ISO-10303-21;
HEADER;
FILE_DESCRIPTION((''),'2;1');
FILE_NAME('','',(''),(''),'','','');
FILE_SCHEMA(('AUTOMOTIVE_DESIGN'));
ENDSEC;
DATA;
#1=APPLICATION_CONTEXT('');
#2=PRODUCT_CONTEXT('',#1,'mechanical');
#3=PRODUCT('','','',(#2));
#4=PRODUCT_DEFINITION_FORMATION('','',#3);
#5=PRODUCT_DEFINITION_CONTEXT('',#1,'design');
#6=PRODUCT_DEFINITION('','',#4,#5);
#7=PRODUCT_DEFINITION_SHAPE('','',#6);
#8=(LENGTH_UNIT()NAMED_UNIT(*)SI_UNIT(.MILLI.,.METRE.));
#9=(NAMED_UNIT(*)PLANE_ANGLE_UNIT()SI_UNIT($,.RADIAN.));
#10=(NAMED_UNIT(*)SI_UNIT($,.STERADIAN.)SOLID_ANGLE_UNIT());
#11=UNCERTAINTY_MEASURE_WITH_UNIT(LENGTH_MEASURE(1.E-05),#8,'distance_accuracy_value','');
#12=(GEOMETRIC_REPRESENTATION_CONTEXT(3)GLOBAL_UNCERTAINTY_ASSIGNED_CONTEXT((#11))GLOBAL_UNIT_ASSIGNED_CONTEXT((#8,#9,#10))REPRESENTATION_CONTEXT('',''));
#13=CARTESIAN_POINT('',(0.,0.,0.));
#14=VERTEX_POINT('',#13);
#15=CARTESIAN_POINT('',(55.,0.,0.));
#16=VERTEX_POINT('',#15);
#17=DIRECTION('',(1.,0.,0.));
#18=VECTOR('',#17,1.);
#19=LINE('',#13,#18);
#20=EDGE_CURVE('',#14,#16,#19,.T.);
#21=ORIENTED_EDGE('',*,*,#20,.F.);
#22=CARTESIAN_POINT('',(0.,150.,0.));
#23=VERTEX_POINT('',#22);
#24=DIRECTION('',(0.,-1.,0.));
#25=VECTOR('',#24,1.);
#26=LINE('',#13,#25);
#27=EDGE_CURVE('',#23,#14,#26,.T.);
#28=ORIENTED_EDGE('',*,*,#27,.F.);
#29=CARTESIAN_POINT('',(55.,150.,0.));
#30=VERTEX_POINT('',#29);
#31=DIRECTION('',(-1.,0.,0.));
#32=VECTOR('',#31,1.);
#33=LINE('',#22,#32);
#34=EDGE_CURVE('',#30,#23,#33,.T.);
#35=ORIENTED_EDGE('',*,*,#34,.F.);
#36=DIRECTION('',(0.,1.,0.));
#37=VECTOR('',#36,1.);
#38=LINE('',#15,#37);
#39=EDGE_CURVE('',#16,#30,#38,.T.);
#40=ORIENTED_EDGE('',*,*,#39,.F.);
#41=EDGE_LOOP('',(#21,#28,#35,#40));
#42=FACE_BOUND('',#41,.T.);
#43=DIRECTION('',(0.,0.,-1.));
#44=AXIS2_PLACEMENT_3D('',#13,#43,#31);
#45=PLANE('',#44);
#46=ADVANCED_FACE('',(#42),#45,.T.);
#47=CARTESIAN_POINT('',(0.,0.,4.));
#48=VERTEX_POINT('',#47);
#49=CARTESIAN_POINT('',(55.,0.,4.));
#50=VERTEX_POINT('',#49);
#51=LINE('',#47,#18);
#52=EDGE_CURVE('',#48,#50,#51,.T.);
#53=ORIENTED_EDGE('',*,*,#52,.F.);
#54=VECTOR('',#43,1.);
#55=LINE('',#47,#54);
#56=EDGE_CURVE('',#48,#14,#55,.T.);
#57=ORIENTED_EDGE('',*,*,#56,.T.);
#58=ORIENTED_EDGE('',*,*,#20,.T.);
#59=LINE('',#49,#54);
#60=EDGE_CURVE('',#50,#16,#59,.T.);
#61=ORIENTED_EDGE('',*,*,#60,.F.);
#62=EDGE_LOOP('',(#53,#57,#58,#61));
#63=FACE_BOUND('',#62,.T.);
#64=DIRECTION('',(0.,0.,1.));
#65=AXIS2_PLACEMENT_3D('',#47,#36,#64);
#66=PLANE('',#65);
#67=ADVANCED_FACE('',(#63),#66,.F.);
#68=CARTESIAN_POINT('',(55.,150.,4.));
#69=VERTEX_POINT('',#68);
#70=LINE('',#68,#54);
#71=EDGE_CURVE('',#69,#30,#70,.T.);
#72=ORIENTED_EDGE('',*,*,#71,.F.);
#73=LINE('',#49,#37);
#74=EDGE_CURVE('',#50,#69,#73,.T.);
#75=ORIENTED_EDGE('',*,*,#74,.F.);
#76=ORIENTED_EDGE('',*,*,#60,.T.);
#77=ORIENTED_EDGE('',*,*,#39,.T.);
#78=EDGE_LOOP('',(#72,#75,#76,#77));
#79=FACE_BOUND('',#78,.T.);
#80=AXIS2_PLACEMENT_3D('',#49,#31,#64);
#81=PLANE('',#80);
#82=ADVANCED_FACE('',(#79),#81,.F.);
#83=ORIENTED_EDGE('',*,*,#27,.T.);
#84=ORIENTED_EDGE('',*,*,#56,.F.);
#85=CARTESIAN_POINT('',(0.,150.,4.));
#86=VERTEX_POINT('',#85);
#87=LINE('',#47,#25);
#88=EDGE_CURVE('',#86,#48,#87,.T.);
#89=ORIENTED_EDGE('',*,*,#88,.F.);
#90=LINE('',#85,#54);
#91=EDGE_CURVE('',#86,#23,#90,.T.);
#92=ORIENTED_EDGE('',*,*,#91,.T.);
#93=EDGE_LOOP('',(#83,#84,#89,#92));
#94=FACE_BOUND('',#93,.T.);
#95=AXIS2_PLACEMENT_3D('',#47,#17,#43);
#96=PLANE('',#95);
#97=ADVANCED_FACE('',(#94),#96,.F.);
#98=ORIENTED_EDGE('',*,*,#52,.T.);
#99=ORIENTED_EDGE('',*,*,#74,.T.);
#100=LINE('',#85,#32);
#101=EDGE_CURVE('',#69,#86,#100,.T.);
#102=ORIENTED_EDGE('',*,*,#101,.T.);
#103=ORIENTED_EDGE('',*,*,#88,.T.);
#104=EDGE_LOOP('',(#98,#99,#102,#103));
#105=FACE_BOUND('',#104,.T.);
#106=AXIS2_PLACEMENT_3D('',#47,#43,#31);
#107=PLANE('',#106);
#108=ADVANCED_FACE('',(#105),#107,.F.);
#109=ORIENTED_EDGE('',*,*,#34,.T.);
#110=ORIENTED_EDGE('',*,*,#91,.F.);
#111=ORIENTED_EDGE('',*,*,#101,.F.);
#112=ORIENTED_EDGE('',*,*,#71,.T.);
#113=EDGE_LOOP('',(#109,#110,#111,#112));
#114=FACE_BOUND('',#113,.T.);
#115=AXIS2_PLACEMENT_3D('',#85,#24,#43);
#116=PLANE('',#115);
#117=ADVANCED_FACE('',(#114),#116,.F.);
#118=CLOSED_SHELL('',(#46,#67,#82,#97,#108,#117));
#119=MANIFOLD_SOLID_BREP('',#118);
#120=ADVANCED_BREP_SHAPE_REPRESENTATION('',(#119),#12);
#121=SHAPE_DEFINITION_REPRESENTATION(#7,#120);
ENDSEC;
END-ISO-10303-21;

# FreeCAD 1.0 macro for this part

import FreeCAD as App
import Part
import Sketcher

V = App.Vector
Q = App.Units.Quantity


def add_polygon(sketch, points):
    """Adds a closed chain of lines whose ends are joined by coincident constraints."""
    first, n = sketch.GeometryCount, len(points)
    for a, b in zip(points, points[1:] + points[:1]):
        sketch.addGeometry(Part.LineSegment(App.Vector(*a, 0), App.Vector(*b, 0)), False)
    for i in range(n):
        sketch.addConstraint(Sketcher.Constraint("Coincident", first + i, 2, first + (i + 1) % n, 1))

doc = App.newDocument("Part")
body = doc.addObject("PartDesign::Body", "Body")

sketch1 = doc.addObject("Sketcher::SketchObject", "Sketch")
body.addObject(sketch1)
sketch1.AttachmentSupport = (doc.XY_Plane, [""])
sketch1.MapMode = "FlatFace"
add_polygon(sketch1, [(0, 150), (0, 0), (55, 0), (55, 150)])
sketch1.addConstraint([
    Sketcher.Constraint("Vertical", 0),
    Sketcher.Constraint("Horizontal", 1),
    Sketcher.Constraint("Vertical", 2),
    Sketcher.Constraint("Horizontal", 3),
    Sketcher.Constraint("Coincident", 0, 2, -1, 1),
    Sketcher.Constraint("DistanceX", 1, 1, 1, 2, Q("55 mm")),
    Sketcher.Constraint("DistanceY", 0, 2, 0, 1, Q("150 mm")),
])
pad1 = doc.addObject("PartDesign::Pad", "Pad")
body.addObject(pad1)
pad1.Profile = sketch1
pad1.Length = 4

doc.recompute()
